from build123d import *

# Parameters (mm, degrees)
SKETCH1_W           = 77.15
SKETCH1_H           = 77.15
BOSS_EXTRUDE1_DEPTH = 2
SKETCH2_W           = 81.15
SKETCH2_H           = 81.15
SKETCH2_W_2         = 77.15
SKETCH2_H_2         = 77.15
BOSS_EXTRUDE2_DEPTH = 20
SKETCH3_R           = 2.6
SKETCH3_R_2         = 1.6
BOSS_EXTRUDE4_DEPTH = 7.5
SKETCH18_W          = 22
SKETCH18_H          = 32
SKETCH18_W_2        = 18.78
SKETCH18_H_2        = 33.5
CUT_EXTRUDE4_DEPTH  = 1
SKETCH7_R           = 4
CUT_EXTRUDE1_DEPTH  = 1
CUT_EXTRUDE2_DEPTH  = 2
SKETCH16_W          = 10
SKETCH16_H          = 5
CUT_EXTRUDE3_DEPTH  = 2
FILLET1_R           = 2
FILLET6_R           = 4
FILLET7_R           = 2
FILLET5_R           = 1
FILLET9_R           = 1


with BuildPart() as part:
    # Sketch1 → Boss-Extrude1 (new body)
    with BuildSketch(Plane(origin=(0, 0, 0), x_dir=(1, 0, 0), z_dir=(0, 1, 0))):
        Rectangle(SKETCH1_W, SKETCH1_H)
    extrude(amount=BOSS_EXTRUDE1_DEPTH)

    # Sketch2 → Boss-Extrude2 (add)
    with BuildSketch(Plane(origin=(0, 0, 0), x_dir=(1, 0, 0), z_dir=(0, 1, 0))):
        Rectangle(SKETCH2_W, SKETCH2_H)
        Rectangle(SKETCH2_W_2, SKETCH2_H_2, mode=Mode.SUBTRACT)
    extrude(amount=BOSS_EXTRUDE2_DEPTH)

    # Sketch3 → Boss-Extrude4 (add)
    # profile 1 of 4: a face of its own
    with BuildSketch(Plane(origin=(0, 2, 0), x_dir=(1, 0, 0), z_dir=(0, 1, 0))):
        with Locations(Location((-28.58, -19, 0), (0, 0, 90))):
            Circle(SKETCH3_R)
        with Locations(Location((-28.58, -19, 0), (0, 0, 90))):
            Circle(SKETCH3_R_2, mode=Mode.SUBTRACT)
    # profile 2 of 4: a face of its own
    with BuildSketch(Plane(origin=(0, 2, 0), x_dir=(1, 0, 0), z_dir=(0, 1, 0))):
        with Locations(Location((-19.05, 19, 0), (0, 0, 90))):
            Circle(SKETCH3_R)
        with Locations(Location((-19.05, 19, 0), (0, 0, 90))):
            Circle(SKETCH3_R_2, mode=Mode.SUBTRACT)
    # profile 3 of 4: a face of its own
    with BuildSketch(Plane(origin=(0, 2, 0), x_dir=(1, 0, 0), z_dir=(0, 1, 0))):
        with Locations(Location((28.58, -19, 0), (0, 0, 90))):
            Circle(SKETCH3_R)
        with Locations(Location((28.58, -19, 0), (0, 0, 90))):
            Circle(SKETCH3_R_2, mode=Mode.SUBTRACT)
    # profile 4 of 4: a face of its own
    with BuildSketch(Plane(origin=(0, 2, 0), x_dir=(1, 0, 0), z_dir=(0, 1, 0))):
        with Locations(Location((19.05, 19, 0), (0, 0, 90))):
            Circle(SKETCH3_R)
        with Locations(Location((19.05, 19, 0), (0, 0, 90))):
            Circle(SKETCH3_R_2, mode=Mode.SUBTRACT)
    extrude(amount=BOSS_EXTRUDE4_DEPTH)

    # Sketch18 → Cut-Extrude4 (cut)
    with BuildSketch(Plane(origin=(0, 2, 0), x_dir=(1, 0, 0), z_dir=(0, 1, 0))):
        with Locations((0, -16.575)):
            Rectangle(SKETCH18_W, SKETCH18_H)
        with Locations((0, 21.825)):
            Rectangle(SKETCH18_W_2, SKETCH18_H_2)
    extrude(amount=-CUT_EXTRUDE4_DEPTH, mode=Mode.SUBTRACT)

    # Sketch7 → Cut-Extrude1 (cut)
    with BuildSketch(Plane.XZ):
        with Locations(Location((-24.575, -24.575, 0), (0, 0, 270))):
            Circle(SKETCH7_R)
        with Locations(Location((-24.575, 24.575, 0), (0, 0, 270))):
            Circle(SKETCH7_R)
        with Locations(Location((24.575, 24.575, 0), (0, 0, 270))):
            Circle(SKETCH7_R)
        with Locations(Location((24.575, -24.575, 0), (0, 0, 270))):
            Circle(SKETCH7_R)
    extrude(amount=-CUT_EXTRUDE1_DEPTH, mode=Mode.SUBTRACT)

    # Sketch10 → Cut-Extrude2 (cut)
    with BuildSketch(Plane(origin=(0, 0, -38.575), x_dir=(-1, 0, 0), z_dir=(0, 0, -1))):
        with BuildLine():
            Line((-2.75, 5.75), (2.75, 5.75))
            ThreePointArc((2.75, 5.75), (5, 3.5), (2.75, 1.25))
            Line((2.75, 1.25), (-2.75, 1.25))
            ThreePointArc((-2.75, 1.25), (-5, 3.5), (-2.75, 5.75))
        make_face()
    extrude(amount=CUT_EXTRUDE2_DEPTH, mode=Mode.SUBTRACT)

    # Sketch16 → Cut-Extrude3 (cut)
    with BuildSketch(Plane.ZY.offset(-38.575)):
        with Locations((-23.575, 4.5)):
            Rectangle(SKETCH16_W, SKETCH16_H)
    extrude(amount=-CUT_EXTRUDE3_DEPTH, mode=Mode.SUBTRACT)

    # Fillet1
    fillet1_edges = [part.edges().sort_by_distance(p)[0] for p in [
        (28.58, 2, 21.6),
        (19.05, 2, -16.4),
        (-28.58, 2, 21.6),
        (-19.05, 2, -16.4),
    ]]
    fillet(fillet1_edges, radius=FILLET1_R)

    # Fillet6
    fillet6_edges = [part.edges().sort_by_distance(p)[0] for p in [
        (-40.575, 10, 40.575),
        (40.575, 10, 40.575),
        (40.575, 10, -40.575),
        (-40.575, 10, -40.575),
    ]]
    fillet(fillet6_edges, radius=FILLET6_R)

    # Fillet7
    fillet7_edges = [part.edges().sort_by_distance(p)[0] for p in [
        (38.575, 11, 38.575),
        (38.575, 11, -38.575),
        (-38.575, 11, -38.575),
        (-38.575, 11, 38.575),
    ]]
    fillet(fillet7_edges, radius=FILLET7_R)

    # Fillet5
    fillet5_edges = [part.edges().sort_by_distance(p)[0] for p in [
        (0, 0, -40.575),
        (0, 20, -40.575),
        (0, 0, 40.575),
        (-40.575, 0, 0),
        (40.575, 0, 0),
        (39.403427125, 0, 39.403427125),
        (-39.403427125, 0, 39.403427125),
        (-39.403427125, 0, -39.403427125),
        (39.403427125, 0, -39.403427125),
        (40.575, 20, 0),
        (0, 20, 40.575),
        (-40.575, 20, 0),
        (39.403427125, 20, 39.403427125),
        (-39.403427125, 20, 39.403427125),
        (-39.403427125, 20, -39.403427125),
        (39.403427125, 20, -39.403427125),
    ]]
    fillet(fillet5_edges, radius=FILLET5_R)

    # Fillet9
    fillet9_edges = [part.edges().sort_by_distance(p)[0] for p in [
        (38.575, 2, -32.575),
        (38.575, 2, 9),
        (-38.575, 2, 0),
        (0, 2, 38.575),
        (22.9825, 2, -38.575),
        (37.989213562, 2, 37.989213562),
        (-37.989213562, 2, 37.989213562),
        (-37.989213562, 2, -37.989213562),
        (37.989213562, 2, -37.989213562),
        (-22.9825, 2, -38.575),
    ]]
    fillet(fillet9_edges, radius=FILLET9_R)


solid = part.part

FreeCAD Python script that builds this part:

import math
import FreeCAD as App
import Part
import Sketcher
from FreeCAD import Vector
Q = App.Units.Quantity


def edges_at(feature, points):
    """Names of the edges that pass closest to the given points."""
    edges = feature.Shape.Edges
    near = lambda p: min(range(len(edges)), key=lambda i: edges[i].distToShape(Part.Vertex(*p))[0])
    return sorted({f"Edge{near(p) + 1}" for p in points})


def add_polygon(sketch, points):
    """Adds a closed chain of lines whose ends are joined by coincident constraints."""
    first, n = sketch.GeometryCount, len(points)
    for a, b in zip(points, points[1:] + points[:1]):
        sketch.addGeometry(Part.LineSegment(App.Vector(*a, 0), App.Vector(*b, 0)), False)
    for i in range(n):
        sketch.addConstraint(Sketcher.Constraint("Coincident", first + i, 2, first + (i + 1) % n, 1))

doc = App.newDocument("Part")
body = doc.addObject("PartDesign::Body", "Body")

# Sketch on XZ plane
sketch1 = doc.addObject("Sketcher::SketchObject", "Sketch")
body.addObject(sketch1)
sketch1.AttachmentSupport = (doc.XZ_Plane, [""])
sketch1.MapMode = "FlatFace"
add_polygon(sketch1, [(-38.575, -38.575), (-38.575, 38.575), (38.575, 38.575), (38.575, -38.575)])  # lines 0-3
sketch1.addConstraint(Sketcher.Constraint("Vertical", 0))
sketch1.addConstraint(Sketcher.Constraint("Horizontal", 1))
sketch1.addConstraint(Sketcher.Constraint("Vertical", 2))
sketch1.addConstraint(Sketcher.Constraint("Horizontal", 3))
sketch1.addConstraint(Sketcher.Constraint("Symmetric", 0, 2, 2, 2, -1, 1))
sketch1.addConstraint(Sketcher.Constraint("Equal", 3, 0))
sketch1.addConstraint(Sketcher.Constraint("DistanceX", 1, 1, 1, 2, Q("77.15 mm")))
pad1 = doc.addObject("PartDesign::Pad", "Pad")
body.addObject(pad1)
pad1.Profile = sketch1
pad1.Length = 2
pad1.Reversed = True

# Sketch on XZ plane
sketch2 = doc.addObject("Sketcher::SketchObject", "Sketch001")
body.addObject(sketch2)
sketch2.AttachmentSupport = (doc.XZ_Plane, [""])
sketch2.MapMode = "FlatFace"
add_polygon(sketch2, [(-40.575, -40.575), (-40.575, 40.575), (40.575, 40.575), (40.575, -40.575)])  # lines 0-3
add_polygon(sketch2, [(38.575, 38.575), (-38.575, 38.575), (-38.575, -38.575), (38.575, -38.575)])  # lines 4-7
sketch2.addConstraint(Sketcher.Constraint("Vertical", 0))
sketch2.addConstraint(Sketcher.Constraint("Horizontal", 1))
sketch2.addConstraint(Sketcher.Constraint("Vertical", 2))
sketch2.addConstraint(Sketcher.Constraint("Horizontal", 3))
sketch2.addConstraint(Sketcher.Constraint("Horizontal", 4))
sketch2.addConstraint(Sketcher.Constraint("Vertical", 5))
sketch2.addConstraint(Sketcher.Constraint("Horizontal", 6))
sketch2.addConstraint(Sketcher.Constraint("Vertical", 7))
sketch2.addConstraint(Sketcher.Constraint("Symmetric", 0, 2, 2, 2, -1, 1))
sketch2.addConstraint(Sketcher.Constraint("Symmetric", 4, 2, 6, 2, -1, 1))
sketch2.addConstraint(Sketcher.Constraint("Equal", 3, 0))
sketch2.addConstraint(Sketcher.Constraint("Equal", 6, 5))
sketch2.addConstraint(Sketcher.Constraint("DistanceX", 0, 2, 4, 2, Q("2 mm")))
sketch2.addConstraint(Sketcher.Constraint("DistanceX", 1, 1, 1, 2, Q("81.15 mm")))
pad2 = doc.addObject("PartDesign::Pad", "Pad001")
body.addObject(pad2)
pad2.Profile = sketch2
pad2.Length = 20
pad2.Reversed = True

# Sketch on XZ plane
sketch3 = doc.addObject("Sketcher::SketchObject", "Sketch002")
body.addObject(sketch3)
sketch3.AttachmentSupport = (doc.XZ_Plane, [""])
sketch3.MapMode = "FlatFace"
sketch3.AttachmentOffset = App.Placement(Vector(0, 0, -2), App.Rotation())
sketch3.addGeometry(Part.Circle(Vector(-28.58, 19, 0), Vector(0, 0, 1), 2.6), False)
sketch3.addGeometry(Part.Circle(Vector(-28.58, 19, 0), Vector(0, 0, 1), 1.6), False)
sketch3.addGeometry(Part.Circle(Vector(-19.05, -19, 0), Vector(0, 0, 1), 2.6), False)
sketch3.addGeometry(Part.Circle(Vector(-19.05, -19, 0), Vector(0, 0, 1), 1.6), False)
sketch3.addGeometry(Part.Circle(Vector(28.58, 19, 0), Vector(0, 0, 1), 2.6), False)
sketch3.addGeometry(Part.Circle(Vector(28.58, 19, 0), Vector(0, 0, 1), 1.6), False)
sketch3.addGeometry(Part.Circle(Vector(19.05, -19, 0), Vector(0, 0, 1), 2.6), False)
sketch3.addGeometry(Part.Circle(Vector(19.05, -19, 0), Vector(0, 0, 1), 1.6), False)
sketch3.addConstraint(Sketcher.Constraint("Coincident", 1, 3, 0, 3))
sketch3.addConstraint(Sketcher.Constraint("Coincident", 3, 3, 2, 3))
sketch3.addConstraint(Sketcher.Constraint("Coincident", 5, 3, 4, 3))
sketch3.addConstraint(Sketcher.Constraint("Coincident", 7, 3, 6, 3))
sketch3.addConstraint(Sketcher.Constraint("Equal", 0, 2))
sketch3.addConstraint(Sketcher.Constraint("Equal", 1, 3))
sketch3.addConstraint(Sketcher.Constraint("Equal", 2, 4))
sketch3.addConstraint(Sketcher.Constraint("Equal", 3, 5))
sketch3.addConstraint(Sketcher.Constraint("Equal", 4, 6))
sketch3.addConstraint(Sketcher.Constraint("Equal", 5, 7))
sketch3.addConstraint(Sketcher.Constraint("Symmetric", 0, 3, 4, 3, -2))
sketch3.addConstraint(Sketcher.Constraint("Symmetric", 2, 3, 6, 3, -2))
sketch3.addConstraint(Sketcher.Constraint("Diameter", 0, Q("5.2 mm")))
sketch3.addConstraint(Sketcher.Constraint("Diameter", 1, Q("3.2 mm")))
sketch3.addConstraint(Sketcher.Constraint("DistanceY", -1, 1, 0, 3, Q("19 mm")))
sketch3.addConstraint(Sketcher.Constraint("DistanceY", 2, 3, -1, 1, Q("19 mm")))
sketch3.addConstraint(Sketcher.Constraint("DistanceX", 2, 3, 6, 3, Q("38.1 mm")))
sketch3.addConstraint(Sketcher.Constraint("DistanceX", 0, 3, -1, 1, Q("28.58 mm")))
pad3 = doc.addObject("PartDesign::Pad", "Pad002")
body.addObject(pad3)
pad3.Profile = sketch3
pad3.Length = 7.5
pad3.Reversed = True

# Sketch on XZ plane
sketch4 = doc.addObject("Sketcher::SketchObject", "Sketch003")
body.addObject(sketch4)
sketch4.AttachmentSupport = (doc.XZ_Plane, [""])
sketch4.MapMode = "FlatFace"
sketch4.AttachmentOffset = App.Placement(Vector(0, 0, -2), App.Rotation())
add_polygon(sketch4, [(-11, 0.575), (-11, 32.575), (11, 32.575), (11, 0.575)])  # lines 0-3
add_polygon(sketch4, [(-9.39, -38.575), (-9.39, -5.075), (9.39, -5.075), (9.39, -38.575)])  # lines 4-7
sketch4.addConstraint(Sketcher.Constraint("Vertical", 0))
sketch4.addConstraint(Sketcher.Constraint("Horizontal", 1))
sketch4.addConstraint(Sketcher.Constraint("Vertical", 2))
sketch4.addConstraint(Sketcher.Constraint("Horizontal", 3))
sketch4.addConstraint(Sketcher.Constraint("Vertical", 4))
sketch4.addConstraint(Sketcher.Constraint("Horizontal", 5))
sketch4.addConstraint(Sketcher.Constraint("Vertical", 6))
sketch4.addConstraint(Sketcher.Constraint("Horizontal", 7))
sketch4.addConstraint(Sketcher.Constraint("DistanceX", 1, 1, 1, 2, Q("22 mm")))
sketch4.addConstraint(Sketcher.Constraint("DistanceY", 0, 1, 0, 2, Q("32 mm")))
sketch4.addConstraint(Sketcher.Constraint("DistanceY", 4, 1, 4, 2, Q("33.5 mm")))
sketch4.addConstraint(Sketcher.Constraint("DistanceX", 0, 2, -1, 1, Q("11 mm")))
sketch4.addConstraint(Sketcher.Constraint("DistanceX", 5, 1, 5, 2, Q("18.78 mm")))
sketch4.addConstraint(Sketcher.Constraint("DistanceX", 4, 2, -1, 1, Q("9.39 mm")))
sketch4.addConstraint(Sketcher.Constraint("DistanceY", 4, 2, 3, 2, Q("5.65 mm")))
sketch4.addConstraint(Sketcher.Constraint("DistanceY", -1, 1, 0, 2, Q("32.575 mm")))
pocket1 = doc.addObject("PartDesign::Pocket", "Pocket")
body.addObject(pocket1)
pocket1.Profile = sketch4
pocket1.Length = 1
pocket1.Reversed = True

# Sketch on XZ plane
sketch5 = doc.addObject("Sketcher::SketchObject", "Sketch004")
body.addObject(sketch5)
sketch5.AttachmentSupport = (doc.XZ_Plane, [""])
sketch5.MapMode = "FlatFace"
sketch5.addGeometry(Part.Circle(Vector(-24.575, -24.575, 0), Vector(0, 0, 1), 4), False)
sketch5.addGeometry(Part.Circle(Vector(-24.575, 24.575, 0), Vector(0, 0, 1), 4), False)
sketch5.addGeometry(Part.Circle(Vector(24.575, 24.575, 0), Vector(0, 0, 1), 4), False)
sketch5.addGeometry(Part.Circle(Vector(24.575, -24.575, 0), Vector(0, 0, 1), 4), False)
sketch5.addConstraint(Sketcher.Constraint("Equal", 0, 1))
sketch5.addConstraint(Sketcher.Constraint("Equal", 1, 2))
sketch5.addConstraint(Sketcher.Constraint("Equal", 2, 3))
sketch5.addConstraint(Sketcher.Constraint("Symmetric", 0, 3, 2, 3, -1, 1))
sketch5.addConstraint(Sketcher.Constraint("Symmetric", 1, 3, 3, 3, -1, 1))
sketch5.addConstraint(Sketcher.Constraint("Symmetric", 1, 3, 2, 3, -2))
sketch5.addConstraint(Sketcher.Constraint("Diameter", 0, Q("8 mm")))
sketch5.addConstraint(Sketcher.Constraint("DistanceY", 0, 3, 1, 3, Q("49.15 mm")))
sketch5.addConstraint(Sketcher.Constraint("DistanceX", 1, 3, 2, 3, Q("49.15 mm")))
pocket2 = doc.addObject("PartDesign::Pocket", "Pocket001")
body.addObject(pocket2)
pocket2.Profile = sketch5
pocket2.Length = 1

# Sketch on XY plane
sketch6 = doc.addObject("Sketcher::SketchObject", "Sketch005")
body.addObject(sketch6)
sketch6.AttachmentSupport = (doc.XY_Plane, [""])
sketch6.MapMode = "FlatFace"
sketch6.AttachmentOffset = App.Placement(Vector(0, 0, -38.575), App.Rotation())
sketch6.addGeometry(Part.LineSegment(Vector(-2.75, 5.75, 0), Vector(2.75, 5.75, 0)), False)
sketch6.addGeometry(Part.ArcOfCircle(Part.Circle(Vector(2.75, 3.5, 0), Vector(0, 0, 1), 2.25), math.radians(-90), math.radians(90)), False)
sketch6.addGeometry(Part.LineSegment(Vector(2.75, 1.25, 0), Vector(-2.75, 1.25, 0)), False)
sketch6.addGeometry(Part.ArcOfCircle(Part.Circle(Vector(-2.75, 3.5, 0), Vector(0, 0, 1), 2.25), math.radians(90), math.radians(270)), False)
sketch6.addConstraint(Sketcher.Constraint("Tangent", 0, 2, 1, 2))
sketch6.addConstraint(Sketcher.Constraint("Tangent", 1, 1, 2, 1))
sketch6.addConstraint(Sketcher.Constraint("Tangent", 2, 2, 3, 2))
sketch6.addConstraint(Sketcher.Constraint("Tangent", 3, 1, 0, 1))
sketch6.addConstraint(Sketcher.Constraint("Horizontal", 0))
sketch6.addConstraint(Sketcher.Constraint("Horizontal", 2))
sketch6.addConstraint(Sketcher.Constraint("Radius", 1, Q("2.25 mm")))
sketch6.addConstraint(Sketcher.Constraint("DistanceX", 0, 1, 0, 2, Q("5.5 mm")))
sketch6.addConstraint(Sketcher.Constraint("DistanceY", -1, 1, 1, 3, Q("3.5 mm")))
sketch6.addConstraint(Sketcher.Constraint("DistanceX", -1, 1, 1, 3, Q("2.75 mm")))
pocket3 = doc.addObject("PartDesign::Pocket", "Pocket002")
body.addObject(pocket3)
pocket3.Profile = sketch6
pocket3.Length = 2

# Sketch on YZ plane
sketch7 = doc.addObject("Sketcher::SketchObject", "Sketch006")
body.addObject(sketch7)
sketch7.AttachmentSupport = (doc.YZ_Plane, [""])
sketch7.MapMode = "FlatFace"
sketch7.AttachmentOffset = App.Placement(Vector(0, 0, 38.575), App.Rotation())
add_polygon(sketch7, [(7, -28.575), (2, -28.575), (2, -18.575), (7, -18.575)])  # lines 0-3
sketch7.addConstraint(Sketcher.Constraint("Horizontal", 0))
sketch7.addConstraint(Sketcher.Constraint("Vertical", 1))
sketch7.addConstraint(Sketcher.Constraint("Horizontal", 2))
sketch7.addConstraint(Sketcher.Constraint("Vertical", 3))
sketch7.addConstraint(Sketcher.Constraint("DistanceX", 0, 2, 0, 1, Q("5 mm")))
sketch7.addConstraint(Sketcher.Constraint("DistanceY", 1, 1, 1, 2, Q("10 mm")))
sketch7.addConstraint(Sketcher.Constraint("DistanceX", -1, 1, 0, 2, Q("2 mm")))
sketch7.addConstraint(Sketcher.Constraint("DistanceY", 0, 2, -1, 1, Q("28.575 mm")))
pocket4 = doc.addObject("PartDesign::Pocket", "Pocket003")
body.addObject(pocket4)
pocket4.Profile = sketch7
pocket4.Length = 2
pocket4.Reversed = True
doc.recompute()

fillet = doc.addObject("PartDesign::Fillet", "Fillet")
body.addObject(fillet)
fillet.Base = (pocket4, edges_at(pocket4, [
    (28.58, 2, 21.6),
    (19.05, 2, -16.4),
    (-28.58, 2, 21.6),
    (-19.05, 2, -16.4),
]))
fillet.Radius = 2
doc.recompute()

fillet2 = doc.addObject("PartDesign::Fillet", "Fillet001")
body.addObject(fillet2)
fillet2.Base = (fillet, edges_at(fillet, [
    (-40.575, 10, 40.575),
    (40.575, 10, 40.575),
    (40.575, 10, -40.575),
    (-40.575, 10, -40.575),
]))
fillet2.Radius = 4
doc.recompute()

fillet3 = doc.addObject("PartDesign::Fillet", "Fillet002")
body.addObject(fillet3)
fillet3.Base = (fillet2, edges_at(fillet2, [
    (38.575, 11, 38.575),
    (38.575, 11, -38.575),
    (-38.575, 11, -38.575),
    (-38.575, 11, 38.575),
]))
fillet3.Radius = 2
doc.recompute()

fillet4 = doc.addObject("PartDesign::Fillet", "Fillet003")
body.addObject(fillet4)
fillet4.Base = (fillet3, edges_at(fillet3, [
    (0, 0, -40.575),
    (0, 20, -40.575),
    (0, 0, 40.575),
    (-40.575, 0, 0),
    (40.575, 0, 0),
    (39.403, 0, 39.403),
    (-39.403, 0, 39.403),
    (-39.403, 0, -39.403),
    (39.403, 0, -39.403),
    (40.575, 20, 0),
    (0, 20, 40.575),
    (-40.575, 20, 0),
    (39.403, 20, 39.403),
    (-39.403, 20, 39.403),
    (-39.403, 20, -39.403),
    (39.403, 20, -39.403),
]))
fillet4.Radius = 1
doc.recompute()

fillet5 = doc.addObject("PartDesign::Fillet", "Fillet004")
body.addObject(fillet5)
fillet5.Base = (fillet4, edges_at(fillet4, [
    (38.575, 2, -32.575),
    (38.575, 2, 9),
    (-38.575, 2, 0),
    (0, 2, 38.575),
    (22.983, 2, -38.575),
    (37.989, 2, 37.989),
    (-37.989, 2, 37.989),
    (-37.989, 2, -37.989),
    (37.989, 2, -37.989),
    (-22.983, 2, -38.575),
]))
fillet5.Radius = 1

doc.recompute()
